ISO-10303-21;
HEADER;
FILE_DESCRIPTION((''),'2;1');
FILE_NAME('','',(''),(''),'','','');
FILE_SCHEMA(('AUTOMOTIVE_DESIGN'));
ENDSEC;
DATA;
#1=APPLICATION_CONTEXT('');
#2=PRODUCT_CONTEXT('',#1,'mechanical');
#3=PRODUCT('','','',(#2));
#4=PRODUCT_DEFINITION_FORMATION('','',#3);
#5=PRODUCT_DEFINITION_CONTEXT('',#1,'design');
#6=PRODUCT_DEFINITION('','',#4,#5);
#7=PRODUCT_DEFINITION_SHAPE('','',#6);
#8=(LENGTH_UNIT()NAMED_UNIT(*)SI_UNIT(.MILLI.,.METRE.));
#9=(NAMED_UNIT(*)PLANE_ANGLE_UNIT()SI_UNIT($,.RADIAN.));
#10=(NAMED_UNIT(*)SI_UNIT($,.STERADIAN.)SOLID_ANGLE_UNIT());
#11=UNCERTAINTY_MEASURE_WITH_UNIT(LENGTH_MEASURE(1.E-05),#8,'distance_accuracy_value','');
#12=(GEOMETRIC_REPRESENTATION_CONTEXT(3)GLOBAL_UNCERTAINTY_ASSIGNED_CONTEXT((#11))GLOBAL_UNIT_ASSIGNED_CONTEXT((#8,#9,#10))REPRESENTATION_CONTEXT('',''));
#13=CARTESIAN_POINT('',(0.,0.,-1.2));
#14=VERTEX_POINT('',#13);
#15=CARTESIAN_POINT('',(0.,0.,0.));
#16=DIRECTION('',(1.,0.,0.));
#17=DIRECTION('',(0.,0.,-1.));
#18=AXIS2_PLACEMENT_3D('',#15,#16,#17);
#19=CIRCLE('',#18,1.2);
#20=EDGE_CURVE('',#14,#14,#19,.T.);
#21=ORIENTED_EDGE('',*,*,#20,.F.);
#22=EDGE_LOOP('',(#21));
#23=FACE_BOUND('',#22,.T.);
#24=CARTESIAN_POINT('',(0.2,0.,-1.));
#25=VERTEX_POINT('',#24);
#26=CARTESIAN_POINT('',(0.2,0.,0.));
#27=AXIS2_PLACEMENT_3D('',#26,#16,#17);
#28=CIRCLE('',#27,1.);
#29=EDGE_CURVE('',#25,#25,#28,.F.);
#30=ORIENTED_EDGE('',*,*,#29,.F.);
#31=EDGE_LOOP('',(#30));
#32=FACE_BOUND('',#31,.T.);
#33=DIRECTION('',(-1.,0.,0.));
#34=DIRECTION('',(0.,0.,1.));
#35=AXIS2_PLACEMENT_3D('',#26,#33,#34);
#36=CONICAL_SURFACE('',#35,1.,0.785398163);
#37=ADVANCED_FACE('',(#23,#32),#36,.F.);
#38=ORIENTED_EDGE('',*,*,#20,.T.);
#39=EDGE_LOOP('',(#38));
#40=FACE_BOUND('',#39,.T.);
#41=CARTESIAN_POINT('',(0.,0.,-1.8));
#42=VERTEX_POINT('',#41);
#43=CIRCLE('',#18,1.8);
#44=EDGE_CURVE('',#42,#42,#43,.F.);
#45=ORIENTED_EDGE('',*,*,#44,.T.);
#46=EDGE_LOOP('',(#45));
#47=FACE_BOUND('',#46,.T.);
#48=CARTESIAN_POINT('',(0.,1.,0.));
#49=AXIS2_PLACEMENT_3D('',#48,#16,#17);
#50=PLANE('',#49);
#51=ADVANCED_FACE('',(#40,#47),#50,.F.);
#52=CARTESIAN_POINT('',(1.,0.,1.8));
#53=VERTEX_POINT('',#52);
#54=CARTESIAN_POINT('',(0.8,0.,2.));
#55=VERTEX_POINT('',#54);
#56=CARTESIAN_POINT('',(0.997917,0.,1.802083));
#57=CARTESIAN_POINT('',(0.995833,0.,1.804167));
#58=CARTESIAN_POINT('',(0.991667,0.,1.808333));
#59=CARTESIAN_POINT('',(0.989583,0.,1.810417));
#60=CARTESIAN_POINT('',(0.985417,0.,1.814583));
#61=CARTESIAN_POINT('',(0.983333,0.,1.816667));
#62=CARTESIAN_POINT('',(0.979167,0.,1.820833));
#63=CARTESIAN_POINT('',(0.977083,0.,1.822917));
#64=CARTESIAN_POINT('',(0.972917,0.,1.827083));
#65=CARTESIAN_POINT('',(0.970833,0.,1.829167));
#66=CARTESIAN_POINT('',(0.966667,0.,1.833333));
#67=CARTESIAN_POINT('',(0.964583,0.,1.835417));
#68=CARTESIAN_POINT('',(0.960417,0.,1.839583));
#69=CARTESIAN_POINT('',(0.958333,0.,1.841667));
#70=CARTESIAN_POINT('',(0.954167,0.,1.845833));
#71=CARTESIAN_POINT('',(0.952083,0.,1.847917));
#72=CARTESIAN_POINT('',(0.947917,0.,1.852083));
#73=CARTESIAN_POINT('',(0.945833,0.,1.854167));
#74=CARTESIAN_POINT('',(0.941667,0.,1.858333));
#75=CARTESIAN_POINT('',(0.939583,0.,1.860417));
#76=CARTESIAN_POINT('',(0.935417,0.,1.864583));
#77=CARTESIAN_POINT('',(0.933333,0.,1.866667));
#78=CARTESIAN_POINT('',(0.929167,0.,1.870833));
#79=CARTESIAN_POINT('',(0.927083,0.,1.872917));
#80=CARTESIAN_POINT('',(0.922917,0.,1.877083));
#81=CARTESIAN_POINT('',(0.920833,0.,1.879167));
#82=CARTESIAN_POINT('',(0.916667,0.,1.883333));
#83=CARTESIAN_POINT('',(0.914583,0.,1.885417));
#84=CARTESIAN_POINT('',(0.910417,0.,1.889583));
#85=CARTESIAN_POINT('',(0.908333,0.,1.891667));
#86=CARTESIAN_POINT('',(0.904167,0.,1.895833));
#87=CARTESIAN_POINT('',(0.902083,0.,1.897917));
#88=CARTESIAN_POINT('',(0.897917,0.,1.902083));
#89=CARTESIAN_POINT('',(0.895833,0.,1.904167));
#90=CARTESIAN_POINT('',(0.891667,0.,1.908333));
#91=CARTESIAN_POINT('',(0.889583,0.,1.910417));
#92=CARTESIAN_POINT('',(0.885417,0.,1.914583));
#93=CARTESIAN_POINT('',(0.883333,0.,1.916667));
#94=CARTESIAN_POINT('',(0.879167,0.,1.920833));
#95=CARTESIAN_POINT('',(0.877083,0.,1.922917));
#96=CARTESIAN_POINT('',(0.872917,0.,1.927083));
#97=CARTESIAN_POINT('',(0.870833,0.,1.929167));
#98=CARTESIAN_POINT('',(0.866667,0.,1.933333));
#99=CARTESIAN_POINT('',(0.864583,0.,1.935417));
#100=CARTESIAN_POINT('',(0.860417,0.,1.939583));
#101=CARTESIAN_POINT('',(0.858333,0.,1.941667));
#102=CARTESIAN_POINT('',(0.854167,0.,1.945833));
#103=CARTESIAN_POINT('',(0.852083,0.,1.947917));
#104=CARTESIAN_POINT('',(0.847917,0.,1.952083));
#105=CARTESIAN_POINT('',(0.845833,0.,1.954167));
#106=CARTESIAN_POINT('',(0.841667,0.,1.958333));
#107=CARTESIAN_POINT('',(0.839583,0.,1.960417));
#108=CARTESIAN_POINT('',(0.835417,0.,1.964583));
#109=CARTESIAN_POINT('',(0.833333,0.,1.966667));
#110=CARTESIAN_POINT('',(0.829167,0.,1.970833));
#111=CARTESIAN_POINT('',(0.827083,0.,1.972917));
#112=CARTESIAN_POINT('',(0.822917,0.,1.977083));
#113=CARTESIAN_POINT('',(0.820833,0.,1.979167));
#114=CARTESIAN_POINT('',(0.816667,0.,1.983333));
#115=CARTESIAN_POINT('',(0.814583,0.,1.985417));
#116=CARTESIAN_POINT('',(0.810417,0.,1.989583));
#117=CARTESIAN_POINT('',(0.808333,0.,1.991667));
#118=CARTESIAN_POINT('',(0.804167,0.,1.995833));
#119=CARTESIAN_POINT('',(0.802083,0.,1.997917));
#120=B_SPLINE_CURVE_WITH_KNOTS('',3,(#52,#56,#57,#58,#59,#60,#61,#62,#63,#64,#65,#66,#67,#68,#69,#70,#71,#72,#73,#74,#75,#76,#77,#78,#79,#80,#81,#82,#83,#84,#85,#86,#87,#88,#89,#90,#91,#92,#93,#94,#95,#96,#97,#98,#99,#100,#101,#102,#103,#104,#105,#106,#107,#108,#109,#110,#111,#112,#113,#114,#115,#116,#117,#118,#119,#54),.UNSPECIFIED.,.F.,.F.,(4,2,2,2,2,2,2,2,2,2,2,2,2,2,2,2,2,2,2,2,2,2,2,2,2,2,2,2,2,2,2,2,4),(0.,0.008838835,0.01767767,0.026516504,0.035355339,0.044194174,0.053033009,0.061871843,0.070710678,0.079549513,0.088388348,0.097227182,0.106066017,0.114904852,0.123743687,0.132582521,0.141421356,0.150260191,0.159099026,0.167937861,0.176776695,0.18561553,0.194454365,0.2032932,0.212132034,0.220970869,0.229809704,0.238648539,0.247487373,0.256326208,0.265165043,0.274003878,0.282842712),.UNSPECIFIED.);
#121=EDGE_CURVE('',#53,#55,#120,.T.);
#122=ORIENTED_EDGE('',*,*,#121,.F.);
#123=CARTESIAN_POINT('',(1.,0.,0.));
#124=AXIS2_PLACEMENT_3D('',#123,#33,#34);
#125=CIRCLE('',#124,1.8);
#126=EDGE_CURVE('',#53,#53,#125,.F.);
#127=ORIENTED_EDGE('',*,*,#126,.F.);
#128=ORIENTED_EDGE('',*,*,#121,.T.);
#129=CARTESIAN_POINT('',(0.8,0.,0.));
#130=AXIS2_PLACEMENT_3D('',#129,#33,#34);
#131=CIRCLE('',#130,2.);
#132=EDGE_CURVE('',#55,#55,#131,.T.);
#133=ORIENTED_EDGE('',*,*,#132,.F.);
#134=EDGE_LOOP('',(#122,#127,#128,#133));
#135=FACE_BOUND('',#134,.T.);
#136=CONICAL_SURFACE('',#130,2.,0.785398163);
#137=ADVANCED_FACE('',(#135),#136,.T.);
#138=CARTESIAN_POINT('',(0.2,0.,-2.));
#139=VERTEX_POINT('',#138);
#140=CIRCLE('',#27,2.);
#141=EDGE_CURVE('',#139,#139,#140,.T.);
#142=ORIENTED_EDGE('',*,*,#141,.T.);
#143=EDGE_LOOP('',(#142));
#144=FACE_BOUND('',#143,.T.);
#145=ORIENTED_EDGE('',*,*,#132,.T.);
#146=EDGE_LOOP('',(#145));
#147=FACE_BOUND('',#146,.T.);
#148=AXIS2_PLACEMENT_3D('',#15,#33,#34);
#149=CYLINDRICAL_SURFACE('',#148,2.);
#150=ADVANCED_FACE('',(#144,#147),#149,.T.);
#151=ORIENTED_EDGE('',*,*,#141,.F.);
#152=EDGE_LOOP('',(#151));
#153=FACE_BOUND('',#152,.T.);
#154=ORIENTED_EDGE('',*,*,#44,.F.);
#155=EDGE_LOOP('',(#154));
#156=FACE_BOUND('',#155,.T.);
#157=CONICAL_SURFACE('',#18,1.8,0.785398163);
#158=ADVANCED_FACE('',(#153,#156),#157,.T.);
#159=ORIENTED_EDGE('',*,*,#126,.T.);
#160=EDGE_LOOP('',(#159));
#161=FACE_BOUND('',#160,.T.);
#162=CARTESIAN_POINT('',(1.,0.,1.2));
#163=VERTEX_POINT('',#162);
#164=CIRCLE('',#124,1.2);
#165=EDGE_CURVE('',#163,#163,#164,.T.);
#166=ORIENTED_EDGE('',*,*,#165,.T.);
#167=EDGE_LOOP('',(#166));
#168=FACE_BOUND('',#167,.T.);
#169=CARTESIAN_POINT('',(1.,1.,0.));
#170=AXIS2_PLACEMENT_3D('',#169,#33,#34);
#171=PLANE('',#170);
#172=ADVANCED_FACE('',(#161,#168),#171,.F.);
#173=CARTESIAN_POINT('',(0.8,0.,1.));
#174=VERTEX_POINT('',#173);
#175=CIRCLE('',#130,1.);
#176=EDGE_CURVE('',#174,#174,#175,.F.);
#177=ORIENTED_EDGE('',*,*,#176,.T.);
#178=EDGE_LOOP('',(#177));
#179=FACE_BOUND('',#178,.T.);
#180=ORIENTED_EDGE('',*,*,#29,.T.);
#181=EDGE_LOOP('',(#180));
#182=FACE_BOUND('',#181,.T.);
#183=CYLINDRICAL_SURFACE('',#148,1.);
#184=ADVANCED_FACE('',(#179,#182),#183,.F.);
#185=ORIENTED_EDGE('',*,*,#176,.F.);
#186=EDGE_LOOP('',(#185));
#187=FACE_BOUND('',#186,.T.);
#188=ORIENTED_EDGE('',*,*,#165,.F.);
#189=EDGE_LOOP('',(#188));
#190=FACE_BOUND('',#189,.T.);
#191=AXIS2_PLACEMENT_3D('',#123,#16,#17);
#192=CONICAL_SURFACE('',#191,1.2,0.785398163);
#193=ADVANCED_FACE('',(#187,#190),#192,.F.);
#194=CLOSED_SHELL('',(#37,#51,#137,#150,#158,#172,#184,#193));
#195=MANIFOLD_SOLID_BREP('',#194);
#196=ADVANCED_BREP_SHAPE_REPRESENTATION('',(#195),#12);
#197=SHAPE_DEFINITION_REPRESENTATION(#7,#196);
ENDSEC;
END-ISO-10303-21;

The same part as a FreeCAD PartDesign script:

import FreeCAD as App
import Part
import Sketcher
Q = App.Units.Quantity


def edges_at(feature, points):
    """Names of the edges that pass closest to the given points."""
    edges = feature.Shape.Edges
    near = lambda p: min(range(len(edges)), key=lambda i: edges[i].distToShape(Part.Vertex(*p))[0])
    return sorted({f"Edge{near(p) + 1}" for p in points})


def add_polygon(sketch, points):
    """Adds a closed chain of lines whose ends are joined by coincident constraints."""
    first, n = sketch.GeometryCount, len(points)
    for a, b in zip(points, points[1:] + points[:1]):
        sketch.addGeometry(Part.LineSegment(App.Vector(*a, 0), App.Vector(*b, 0)), False)
    for i in range(n):
        sketch.addConstraint(Sketcher.Constraint("Coincident", first + i, 2, first + (i + 1) % n, 1))

doc = App.newDocument("Part")
body = doc.addObject("PartDesign::Body", "Body")

# Sketch on XY plane
sketch1 = body.newObject("Sketcher::SketchObject", "Sketch")
sketch1.AttachmentSupport = (doc.getObject("XY_Plane"), [""])
sketch1.MapMode = "FlatFace"
add_polygon(sketch1, [(0, 2), (0, 1), (1, 1), (1, 2)])  # lines 0-3
sketch1.addConstraint(Sketcher.Constraint("Vertical", 0))
sketch1.addConstraint(Sketcher.Constraint("Horizontal", 1))
sketch1.addConstraint(Sketcher.Constraint("Vertical", 2))
sketch1.addConstraint(Sketcher.Constraint("Horizontal", 3))
sketch1.addConstraint(Sketcher.Constraint("PointOnObject", 0, 2, -2))
sketch1.addConstraint(Sketcher.Constraint("Equal", 3, 0))
sketch1.addConstraint(Sketcher.Constraint("DistanceX", 1, 1, 1, 2, Q("1 mm")))
sketch1.addConstraint(Sketcher.Constraint("DistanceY", -1, 1, 0, 2, Q("1 mm")))
revolution = body.newObject("PartDesign::Revolution", "Revolution")
revolution.Profile = sketch1
revolution.ReferenceAxis = (sketch1, ["H_Axis"])
revolution.Angle = 360
doc.recompute()

chamfer = body.newObject("PartDesign::Chamfer", "Chamfer")
chamfer.Base = (revolution, edges_at(revolution, [
    (0, 0, -1),
    (1, 0, -1),
    (1, 0, -2),
    (0, 0, -2),
]))
chamfer.Size = 0.2

doc.recompute()
